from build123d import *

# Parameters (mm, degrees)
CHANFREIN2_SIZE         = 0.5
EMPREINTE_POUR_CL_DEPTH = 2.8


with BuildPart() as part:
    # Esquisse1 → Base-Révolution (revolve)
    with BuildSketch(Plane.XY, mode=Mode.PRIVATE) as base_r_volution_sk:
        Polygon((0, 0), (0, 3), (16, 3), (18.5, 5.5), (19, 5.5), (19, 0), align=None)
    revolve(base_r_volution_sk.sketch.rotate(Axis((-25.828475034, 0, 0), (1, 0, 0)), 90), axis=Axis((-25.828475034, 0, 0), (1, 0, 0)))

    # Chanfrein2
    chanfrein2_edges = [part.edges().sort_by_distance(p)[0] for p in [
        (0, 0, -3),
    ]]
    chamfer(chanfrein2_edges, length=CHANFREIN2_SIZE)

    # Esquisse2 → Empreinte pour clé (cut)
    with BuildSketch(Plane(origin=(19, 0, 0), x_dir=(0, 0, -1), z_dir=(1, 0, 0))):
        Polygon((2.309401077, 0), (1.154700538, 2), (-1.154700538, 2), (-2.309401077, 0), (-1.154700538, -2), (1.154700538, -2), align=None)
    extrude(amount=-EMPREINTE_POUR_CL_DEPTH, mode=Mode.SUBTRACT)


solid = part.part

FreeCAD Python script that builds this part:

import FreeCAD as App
import Part
import Sketcher
Q = App.Units.Quantity


def edges_at(feature, points):
    """Names of the edges that pass closest to the given points."""
    edges = feature.Shape.Edges
    near = lambda p: min(range(len(edges)), key=lambda i: edges[i].distToShape(Part.Vertex(*p))[0])
    return sorted({f"Edge{near(p) + 1}" for p in points})

doc = App.newDocument("Part")
params = doc.addObject("Spreadsheet::Sheet", "Params")
for row, (alias, value) in enumerate([
    ("sketch1_width", "19 mm"),
    ("sketch1_width2", "16 mm"),
    ("sketch1_height", "3 mm"),
    ("sketch1_width3", "0.5 mm"),
    ("revolution_angle", "360 deg"),
    ("chamfer_size", "0.5 mm"),
    ("pocket1_length", "2.8 mm"),
], start=1):
    params.set(f"A{row}", alias)
    params.set(f"B{row}", "=" + value)
    params.setAlias(f"B{row}", alias)

body = doc.addObject("PartDesign::Body", "Body")

# Sketch on XY plane
sketch1 = doc.addObject("Sketcher::SketchObject", "Sketch")
body.addObject(sketch1)
sketch1.AttachmentSupport = (doc.XY_Plane, [""])
sketch1.MapMode = "FlatFace"
sketch1.addGeometry([
    Part.LineSegment(App.Vector(0, 3, 0), App.Vector(0, 0, 0)),  # 0
    Part.LineSegment(App.Vector(0, 0, 0), App.Vector(19, 0, 0)),  # 1
    Part.LineSegment(App.Vector(19, 0, 0), App.Vector(19, 5.5, 0)),  # 2
    Part.LineSegment(App.Vector(19, 5.5, 0), App.Vector(18.5, 5.5, 0)),  # 3
    Part.LineSegment(App.Vector(18.5, 5.5, 0), App.Vector(16, 3, 0)),  # 4
    Part.LineSegment(App.Vector(16, 3, 0), App.Vector(0, 3, 0)),  # 5
], False)
sketch1.addConstraint([
    Sketcher.Constraint("Coincident", 0, 2, 1, 1),
    Sketcher.Constraint("Coincident", 1, 2, 2, 1),
    Sketcher.Constraint("Coincident", 2, 2, 3, 1),
    Sketcher.Constraint("Coincident", 3, 2, 4, 1),
    Sketcher.Constraint("Coincident", 4, 2, 5, 1),
    Sketcher.Constraint("Coincident", 5, 2, 0, 1),
    Sketcher.Constraint("Vertical", 0),
    Sketcher.Constraint("Horizontal", 1),
    Sketcher.Constraint("Vertical", 2),
    Sketcher.Constraint("Horizontal", 3),
    Sketcher.Constraint("Horizontal", 5),
    Sketcher.Constraint("Coincident", 0, 2, -1, 1),
    Sketcher.Constraint("DistanceX", 1, 1, 1, 2, 19.0),
    Sketcher.Constraint("DistanceX", 5, 2, 5, 1, 16.0),
    Sketcher.Constraint("DistanceY", 0, 2, 0, 1, 3.0),
    Sketcher.Constraint("Angle", 4, Q("-135 deg")),
    Sketcher.Constraint("DistanceX", 3, 2, 3, 1, 0.5),
])
sketch1.setExpression("Constraints[12]", "Params.sketch1_width")
sketch1.setExpression("Constraints[13]", "Params.sketch1_width2")
sketch1.setExpression("Constraints[14]", "Params.sketch1_height")
sketch1.setExpression("Constraints[16]", "Params.sketch1_width3")
revolution = doc.addObject("PartDesign::Revolution", "Revolution")
body.addObject(revolution)
revolution.Profile = sketch1
revolution.ReferenceAxis = (sketch1, ["H_Axis"])
revolution.setExpression("Angle", "Params.revolution_angle")
doc.recompute()

chamfer = doc.addObject("PartDesign::Chamfer", "Chamfer")
body.addObject(chamfer)
chamfer.Base = (revolution, edges_at(revolution, [(0, 0, -3)]))
chamfer.setExpression("Size", "Params.chamfer_size")

# Sketch on YZ plane
sketch2 = doc.addObject("Sketcher::SketchObject", "Sketch001")
body.addObject(sketch2)
sketch2.AttachmentSupport = (doc.YZ_Plane, [""])
sketch2.MapMode = "FlatFace"
sketch2.AttachmentOffset = App.Placement(App.Vector(0, 0, 19), App.Rotation())
sketch2.addGeometry([
    Part.LineSegment(App.Vector(0, -2.3, 0), App.Vector(2, -1.2, 0)),  # 0
    Part.LineSegment(App.Vector(2, -1.2, 0), App.Vector(2, 1.2, 0)),  # 1
    Part.LineSegment(App.Vector(2, 1.2, 0), App.Vector(0, 2.3, 0)),  # 2
    Part.LineSegment(App.Vector(0, 2.3, 0), App.Vector(-2, 1.2, 0)),  # 3
    Part.LineSegment(App.Vector(-2, 1.2, 0), App.Vector(-2, -1.2, 0)),  # 4
    Part.LineSegment(App.Vector(-2, -1.2, 0), App.Vector(0, -2.3, 0)),  # 5
], False)
sketch2.addConstraint([
    Sketcher.Constraint("Coincident", 0, 2, 1, 1),
    Sketcher.Constraint("Coincident", 1, 2, 2, 1),
    Sketcher.Constraint("Coincident", 2, 2, 3, 1),
    Sketcher.Constraint("Coincident", 3, 2, 4, 1),
    Sketcher.Constraint("Coincident", 4, 2, 5, 1),
    Sketcher.Constraint("Coincident", 5, 2, 0, 1),
    Sketcher.Constraint("Vertical", 1),
    Sketcher.Constraint("Vertical", 4),
    Sketcher.Constraint("Symmetric", 0, 2, 3, 2, -1, 1),
    Sketcher.Constraint("Symmetric", 2, 2, 5, 2, -1, 1),
    Sketcher.Constraint("PointOnObject", 2, 2, -2),
    Sketcher.Constraint("Parallel", 2, 5),
    Sketcher.Constraint("Horizontal", 1, 2, 3, 2),
    Sketcher.Constraint("Angle", 0, Q("30 deg")),
    Sketcher.Constraint("DistanceX", -1, 1, 0, 2, 2.0),
    Sketcher.Constraint("DistanceY", 1, 1, 1, 2, 2.309401),
])
pocket1 = doc.addObject("PartDesign::Pocket", "Pocket")
body.addObject(pocket1)
pocket1.Profile = sketch2
pocket1.setExpression("Length", "Params.pocket1_length")

doc.recompute()
